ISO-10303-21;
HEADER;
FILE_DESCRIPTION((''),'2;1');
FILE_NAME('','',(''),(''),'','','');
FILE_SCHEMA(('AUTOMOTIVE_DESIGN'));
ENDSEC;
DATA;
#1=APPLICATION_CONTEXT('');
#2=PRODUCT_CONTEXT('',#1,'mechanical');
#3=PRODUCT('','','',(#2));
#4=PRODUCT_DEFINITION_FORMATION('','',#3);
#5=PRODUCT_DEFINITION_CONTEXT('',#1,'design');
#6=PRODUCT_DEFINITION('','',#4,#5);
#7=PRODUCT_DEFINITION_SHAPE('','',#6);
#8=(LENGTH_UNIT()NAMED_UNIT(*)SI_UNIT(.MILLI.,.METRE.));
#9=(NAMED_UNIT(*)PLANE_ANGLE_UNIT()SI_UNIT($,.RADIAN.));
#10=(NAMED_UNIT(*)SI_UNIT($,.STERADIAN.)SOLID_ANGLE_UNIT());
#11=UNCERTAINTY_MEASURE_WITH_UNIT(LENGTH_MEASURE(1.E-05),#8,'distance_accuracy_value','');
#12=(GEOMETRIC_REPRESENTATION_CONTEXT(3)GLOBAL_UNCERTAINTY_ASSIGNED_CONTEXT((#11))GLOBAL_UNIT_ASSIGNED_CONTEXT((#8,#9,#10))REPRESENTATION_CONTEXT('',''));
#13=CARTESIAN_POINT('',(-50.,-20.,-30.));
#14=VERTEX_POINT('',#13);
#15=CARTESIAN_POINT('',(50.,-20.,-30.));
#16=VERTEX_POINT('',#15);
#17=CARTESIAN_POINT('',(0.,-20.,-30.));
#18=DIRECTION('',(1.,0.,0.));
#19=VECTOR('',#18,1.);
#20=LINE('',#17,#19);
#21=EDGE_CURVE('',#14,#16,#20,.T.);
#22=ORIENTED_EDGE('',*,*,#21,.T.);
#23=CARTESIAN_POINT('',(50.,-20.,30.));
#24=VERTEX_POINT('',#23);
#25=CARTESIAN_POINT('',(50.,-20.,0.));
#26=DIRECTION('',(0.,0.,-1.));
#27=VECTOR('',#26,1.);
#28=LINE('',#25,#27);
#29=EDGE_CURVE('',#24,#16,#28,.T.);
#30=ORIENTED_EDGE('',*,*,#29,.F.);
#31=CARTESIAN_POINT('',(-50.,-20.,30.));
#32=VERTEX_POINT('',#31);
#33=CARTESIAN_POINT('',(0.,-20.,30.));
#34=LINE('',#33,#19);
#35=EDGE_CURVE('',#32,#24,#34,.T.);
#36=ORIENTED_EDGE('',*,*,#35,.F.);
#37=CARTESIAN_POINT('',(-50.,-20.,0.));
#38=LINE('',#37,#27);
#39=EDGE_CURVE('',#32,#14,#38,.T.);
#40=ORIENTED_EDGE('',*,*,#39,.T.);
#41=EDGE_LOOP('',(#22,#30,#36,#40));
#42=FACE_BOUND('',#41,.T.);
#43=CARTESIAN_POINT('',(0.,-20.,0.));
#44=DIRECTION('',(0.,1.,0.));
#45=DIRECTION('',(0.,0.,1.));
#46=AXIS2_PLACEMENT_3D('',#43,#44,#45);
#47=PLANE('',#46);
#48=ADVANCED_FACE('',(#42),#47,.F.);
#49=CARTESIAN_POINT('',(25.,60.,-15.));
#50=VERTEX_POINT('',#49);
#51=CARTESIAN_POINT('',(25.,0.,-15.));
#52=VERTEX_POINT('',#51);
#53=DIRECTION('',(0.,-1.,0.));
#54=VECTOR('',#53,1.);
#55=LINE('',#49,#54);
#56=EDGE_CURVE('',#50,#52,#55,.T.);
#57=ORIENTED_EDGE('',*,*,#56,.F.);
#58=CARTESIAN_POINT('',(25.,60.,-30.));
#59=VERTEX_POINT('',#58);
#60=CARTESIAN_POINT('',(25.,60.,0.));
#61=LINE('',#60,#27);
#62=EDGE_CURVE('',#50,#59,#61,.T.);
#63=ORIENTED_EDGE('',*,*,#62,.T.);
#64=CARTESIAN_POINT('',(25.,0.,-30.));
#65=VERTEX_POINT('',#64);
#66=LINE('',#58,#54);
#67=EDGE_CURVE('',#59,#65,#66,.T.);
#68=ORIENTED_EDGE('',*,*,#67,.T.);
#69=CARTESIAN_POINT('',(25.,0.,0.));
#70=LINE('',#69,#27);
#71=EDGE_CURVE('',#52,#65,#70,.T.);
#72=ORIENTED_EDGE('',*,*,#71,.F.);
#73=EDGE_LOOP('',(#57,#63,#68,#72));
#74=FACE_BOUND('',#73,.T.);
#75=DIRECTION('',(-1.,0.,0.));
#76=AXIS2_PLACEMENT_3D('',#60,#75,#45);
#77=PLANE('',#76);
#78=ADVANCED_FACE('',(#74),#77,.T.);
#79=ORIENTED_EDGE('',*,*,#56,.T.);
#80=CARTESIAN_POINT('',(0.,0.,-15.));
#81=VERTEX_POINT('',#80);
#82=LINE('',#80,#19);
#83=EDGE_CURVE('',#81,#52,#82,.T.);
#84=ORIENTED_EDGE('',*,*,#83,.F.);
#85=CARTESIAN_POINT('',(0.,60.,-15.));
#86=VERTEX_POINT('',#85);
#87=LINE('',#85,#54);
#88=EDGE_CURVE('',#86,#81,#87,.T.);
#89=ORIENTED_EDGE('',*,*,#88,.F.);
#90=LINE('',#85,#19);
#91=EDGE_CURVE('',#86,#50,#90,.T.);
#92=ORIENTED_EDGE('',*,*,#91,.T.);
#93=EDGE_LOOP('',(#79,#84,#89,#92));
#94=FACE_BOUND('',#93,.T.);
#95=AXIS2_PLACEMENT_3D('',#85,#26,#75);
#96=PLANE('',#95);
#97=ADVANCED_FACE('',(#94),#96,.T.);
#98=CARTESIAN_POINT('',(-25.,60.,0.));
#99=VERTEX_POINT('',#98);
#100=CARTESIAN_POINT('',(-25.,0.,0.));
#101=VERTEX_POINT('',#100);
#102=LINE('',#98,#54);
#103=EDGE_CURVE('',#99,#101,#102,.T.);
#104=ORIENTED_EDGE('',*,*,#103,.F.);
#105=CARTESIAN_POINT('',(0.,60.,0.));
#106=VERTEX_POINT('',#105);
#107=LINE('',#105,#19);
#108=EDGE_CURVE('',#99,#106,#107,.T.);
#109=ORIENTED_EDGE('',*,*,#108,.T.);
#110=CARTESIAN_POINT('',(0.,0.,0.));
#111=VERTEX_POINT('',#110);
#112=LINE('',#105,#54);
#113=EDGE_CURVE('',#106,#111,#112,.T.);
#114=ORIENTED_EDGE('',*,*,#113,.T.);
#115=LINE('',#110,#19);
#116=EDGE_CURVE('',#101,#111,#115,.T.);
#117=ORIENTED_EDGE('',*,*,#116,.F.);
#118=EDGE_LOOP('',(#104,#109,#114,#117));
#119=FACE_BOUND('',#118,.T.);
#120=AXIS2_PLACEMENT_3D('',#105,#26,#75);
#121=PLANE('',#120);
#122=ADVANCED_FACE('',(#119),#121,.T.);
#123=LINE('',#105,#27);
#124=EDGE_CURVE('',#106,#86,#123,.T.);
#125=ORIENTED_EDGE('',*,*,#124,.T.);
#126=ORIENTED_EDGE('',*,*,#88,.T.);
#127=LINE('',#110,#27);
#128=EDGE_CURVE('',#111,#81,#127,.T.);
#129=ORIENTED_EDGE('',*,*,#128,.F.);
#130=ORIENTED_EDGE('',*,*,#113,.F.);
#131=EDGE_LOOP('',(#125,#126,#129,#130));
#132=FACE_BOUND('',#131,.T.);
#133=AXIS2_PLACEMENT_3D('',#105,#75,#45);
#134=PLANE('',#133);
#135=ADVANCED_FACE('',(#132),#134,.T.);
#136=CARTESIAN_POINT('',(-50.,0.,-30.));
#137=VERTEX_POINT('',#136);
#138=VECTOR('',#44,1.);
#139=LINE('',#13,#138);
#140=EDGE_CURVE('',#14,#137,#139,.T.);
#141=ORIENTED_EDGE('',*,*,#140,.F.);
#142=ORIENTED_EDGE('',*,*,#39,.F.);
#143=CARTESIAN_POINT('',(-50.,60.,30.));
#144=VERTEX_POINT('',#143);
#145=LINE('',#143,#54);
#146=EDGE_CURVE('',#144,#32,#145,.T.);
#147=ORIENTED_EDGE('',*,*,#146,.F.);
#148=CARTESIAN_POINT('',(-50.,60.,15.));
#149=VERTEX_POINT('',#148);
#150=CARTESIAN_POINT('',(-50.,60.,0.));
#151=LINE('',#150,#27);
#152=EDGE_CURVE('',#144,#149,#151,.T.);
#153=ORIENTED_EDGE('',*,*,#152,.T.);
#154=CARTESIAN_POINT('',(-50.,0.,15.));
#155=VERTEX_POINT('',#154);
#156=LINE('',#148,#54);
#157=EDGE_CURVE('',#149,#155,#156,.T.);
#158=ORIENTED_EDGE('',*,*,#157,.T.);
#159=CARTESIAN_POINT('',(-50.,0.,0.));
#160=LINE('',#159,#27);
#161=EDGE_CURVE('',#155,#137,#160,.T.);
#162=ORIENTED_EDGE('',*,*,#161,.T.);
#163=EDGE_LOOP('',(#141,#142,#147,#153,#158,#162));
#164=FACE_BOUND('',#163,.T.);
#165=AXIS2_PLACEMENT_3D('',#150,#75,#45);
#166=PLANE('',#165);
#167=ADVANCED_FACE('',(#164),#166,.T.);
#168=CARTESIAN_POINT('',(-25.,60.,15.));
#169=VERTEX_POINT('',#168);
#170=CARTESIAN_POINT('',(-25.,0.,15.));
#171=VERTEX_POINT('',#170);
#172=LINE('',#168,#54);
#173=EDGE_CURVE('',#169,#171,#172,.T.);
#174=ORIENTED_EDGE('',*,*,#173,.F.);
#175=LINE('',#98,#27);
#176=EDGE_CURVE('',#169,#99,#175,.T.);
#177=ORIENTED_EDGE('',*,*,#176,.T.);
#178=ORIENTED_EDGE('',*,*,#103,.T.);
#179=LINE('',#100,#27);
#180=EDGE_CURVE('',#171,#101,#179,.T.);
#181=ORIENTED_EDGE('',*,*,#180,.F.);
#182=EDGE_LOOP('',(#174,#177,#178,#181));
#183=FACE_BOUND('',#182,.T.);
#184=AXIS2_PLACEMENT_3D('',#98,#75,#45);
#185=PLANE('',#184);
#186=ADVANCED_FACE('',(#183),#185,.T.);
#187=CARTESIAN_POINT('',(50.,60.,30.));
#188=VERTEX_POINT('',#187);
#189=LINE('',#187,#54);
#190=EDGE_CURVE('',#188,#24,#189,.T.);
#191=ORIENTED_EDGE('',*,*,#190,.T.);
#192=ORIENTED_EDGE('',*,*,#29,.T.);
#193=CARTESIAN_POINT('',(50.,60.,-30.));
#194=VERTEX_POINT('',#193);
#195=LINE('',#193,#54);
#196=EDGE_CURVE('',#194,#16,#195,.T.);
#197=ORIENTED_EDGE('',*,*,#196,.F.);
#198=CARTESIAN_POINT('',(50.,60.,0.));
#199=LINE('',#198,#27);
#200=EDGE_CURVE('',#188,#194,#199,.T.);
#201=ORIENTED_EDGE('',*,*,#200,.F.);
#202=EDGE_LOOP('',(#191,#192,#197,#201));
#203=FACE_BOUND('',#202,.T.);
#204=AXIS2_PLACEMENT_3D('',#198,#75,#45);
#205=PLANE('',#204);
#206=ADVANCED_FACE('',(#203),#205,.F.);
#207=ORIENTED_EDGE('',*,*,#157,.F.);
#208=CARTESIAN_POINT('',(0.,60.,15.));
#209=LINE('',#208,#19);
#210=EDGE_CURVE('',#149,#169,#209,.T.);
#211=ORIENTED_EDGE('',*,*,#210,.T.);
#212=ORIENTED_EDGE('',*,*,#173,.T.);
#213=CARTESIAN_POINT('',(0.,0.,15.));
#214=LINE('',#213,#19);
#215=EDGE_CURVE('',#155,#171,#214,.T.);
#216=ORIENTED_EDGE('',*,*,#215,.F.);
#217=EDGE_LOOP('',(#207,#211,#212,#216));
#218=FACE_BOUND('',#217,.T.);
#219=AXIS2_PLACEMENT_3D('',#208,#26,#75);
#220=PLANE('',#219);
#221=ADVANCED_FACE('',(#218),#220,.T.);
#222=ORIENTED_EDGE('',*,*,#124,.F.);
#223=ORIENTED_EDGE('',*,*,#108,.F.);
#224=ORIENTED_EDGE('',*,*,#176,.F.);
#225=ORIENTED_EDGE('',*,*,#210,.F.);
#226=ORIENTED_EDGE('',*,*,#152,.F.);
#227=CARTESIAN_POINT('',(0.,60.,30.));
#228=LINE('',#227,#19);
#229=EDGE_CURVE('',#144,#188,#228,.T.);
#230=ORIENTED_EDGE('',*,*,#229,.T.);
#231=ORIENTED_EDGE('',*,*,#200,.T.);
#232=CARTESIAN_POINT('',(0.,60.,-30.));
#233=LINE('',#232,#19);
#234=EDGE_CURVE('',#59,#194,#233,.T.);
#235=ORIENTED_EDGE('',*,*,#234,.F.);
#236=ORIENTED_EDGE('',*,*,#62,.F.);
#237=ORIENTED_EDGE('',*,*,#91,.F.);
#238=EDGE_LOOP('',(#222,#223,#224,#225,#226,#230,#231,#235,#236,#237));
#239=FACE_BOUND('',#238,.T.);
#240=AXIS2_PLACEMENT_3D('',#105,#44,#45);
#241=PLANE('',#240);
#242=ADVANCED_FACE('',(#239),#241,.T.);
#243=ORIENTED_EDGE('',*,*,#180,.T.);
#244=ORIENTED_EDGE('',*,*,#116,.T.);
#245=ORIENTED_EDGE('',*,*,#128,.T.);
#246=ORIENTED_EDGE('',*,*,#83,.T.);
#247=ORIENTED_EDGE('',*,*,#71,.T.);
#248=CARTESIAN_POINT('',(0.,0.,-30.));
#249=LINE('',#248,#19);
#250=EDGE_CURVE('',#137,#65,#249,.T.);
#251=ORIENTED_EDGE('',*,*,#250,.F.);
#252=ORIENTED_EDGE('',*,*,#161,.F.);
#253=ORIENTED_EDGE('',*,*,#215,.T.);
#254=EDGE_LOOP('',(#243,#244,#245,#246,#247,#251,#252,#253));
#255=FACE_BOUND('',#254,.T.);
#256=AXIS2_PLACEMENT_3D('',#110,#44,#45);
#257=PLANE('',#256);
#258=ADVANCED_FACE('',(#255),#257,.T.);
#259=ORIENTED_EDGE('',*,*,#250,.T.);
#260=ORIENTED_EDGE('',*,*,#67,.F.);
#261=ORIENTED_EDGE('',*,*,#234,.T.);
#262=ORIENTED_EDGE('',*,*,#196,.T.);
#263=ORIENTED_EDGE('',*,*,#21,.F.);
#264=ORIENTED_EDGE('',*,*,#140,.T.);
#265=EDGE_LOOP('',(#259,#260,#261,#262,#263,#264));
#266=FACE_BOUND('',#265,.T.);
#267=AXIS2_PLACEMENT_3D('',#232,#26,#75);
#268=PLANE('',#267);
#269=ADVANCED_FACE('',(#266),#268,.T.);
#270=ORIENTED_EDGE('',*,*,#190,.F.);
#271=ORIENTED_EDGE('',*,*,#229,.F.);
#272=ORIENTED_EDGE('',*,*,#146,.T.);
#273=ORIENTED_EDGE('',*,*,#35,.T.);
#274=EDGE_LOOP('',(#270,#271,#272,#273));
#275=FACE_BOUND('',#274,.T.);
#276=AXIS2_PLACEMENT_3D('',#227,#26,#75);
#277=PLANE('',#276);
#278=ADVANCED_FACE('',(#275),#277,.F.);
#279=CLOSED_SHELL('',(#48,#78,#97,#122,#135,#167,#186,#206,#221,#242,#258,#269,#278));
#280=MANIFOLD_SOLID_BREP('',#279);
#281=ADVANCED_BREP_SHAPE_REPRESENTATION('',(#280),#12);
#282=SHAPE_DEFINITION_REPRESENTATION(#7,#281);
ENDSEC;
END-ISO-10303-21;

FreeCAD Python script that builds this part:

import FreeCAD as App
import Part
import Sketcher
from FreeCAD import Vector
Q = App.Units.Quantity


def add_polygon(sketch, points):
    """Adds a closed chain of lines whose ends are joined by coincident constraints."""
    first, n = sketch.GeometryCount, len(points)
    for a, b in zip(points, points[1:] + points[:1]):
        sketch.addGeometry(Part.LineSegment(App.Vector(*a, 0), App.Vector(*b, 0)), False)
    for i in range(n):
        sketch.addConstraint(Sketcher.Constraint("Coincident", first + i, 2, first + (i + 1) % n, 1))

doc = App.newDocument("Part")
body = doc.addObject("PartDesign::Body", "Body")

# Sketch on XZ plane
sketch1 = body.newObject("Sketcher::SketchObject", "Sketch")
sketch1.AttachmentSupport = (doc.getObject("XZ_Plane"), [""])
sketch1.MapMode = "FlatFace"
add_polygon(sketch1, [(-25, 15), (-50, 15), (-50, 30), (50, 30), (50, -30), (25, -30), (25, -15), (0, -15), (0, 0), (-25, 0)])  # lines 0-9
sketch1.addConstraint([
    Sketcher.Constraint("Horizontal", 0),
    Sketcher.Constraint("Vertical", 1),
    Sketcher.Constraint("Horizontal", 2),
    Sketcher.Constraint("Vertical", 3),
    Sketcher.Constraint("Horizontal", 4),
    Sketcher.Constraint("Vertical", 5),
    Sketcher.Constraint("Horizontal", 6),
    Sketcher.Constraint("Vertical", 7),
    Sketcher.Constraint("Horizontal", 8),
    Sketcher.Constraint("Vertical", 9),
    Sketcher.Constraint("Coincident", 7, 2, -1, 1),
    Sketcher.Constraint("Symmetric", 1, 2, 3, 2, -1, 1),
    Sketcher.Constraint("Symmetric", 5, 2, 9, 2, -1, 1),
    Sketcher.Constraint("Equal", 4, 6),
    Sketcher.Constraint("Equal", 5, 7),
    Sketcher.Constraint("DistanceX", 0, 2, 0, 1, Q("25 mm")),
    Sketcher.Constraint("DistanceY", 1, 1, 1, 2, Q("15 mm")),
])
pad1 = body.newObject("PartDesign::Pad", "Pad")
pad1.Profile = sketch1
pad1.Length = 60
pad1.Reversed = True

# Sketch on XZ plane
sketch2 = body.newObject("Sketcher::SketchObject", "Sketch001")
sketch2.AttachmentSupport = (doc.getObject("XZ_Plane"), [""])
sketch2.MapMode = "FlatFace"
add_polygon(sketch2, [(-50, -30), (-50, 30), (50, 30), (50, -30)])  # lines 0-3
sketch2.addConstraint([
    Sketcher.Constraint("Vertical", 0),
    Sketcher.Constraint("Horizontal", 1),
    Sketcher.Constraint("Vertical", 2),
    Sketcher.Constraint("Horizontal", 3),
    Sketcher.Constraint("Symmetric", 0, 2, 2, 2, -1, 1),
    Sketcher.Constraint("DistanceX", 1, 1, 1, 2, Q("100 mm")),
    Sketcher.Constraint("DistanceY", 0, 1, 0, 2, Q("60 mm")),
])
pad2 = body.newObject("PartDesign::Pad", "Pad001")
pad2.Profile = sketch2
pad2.Length = 20

doc.recompute()
